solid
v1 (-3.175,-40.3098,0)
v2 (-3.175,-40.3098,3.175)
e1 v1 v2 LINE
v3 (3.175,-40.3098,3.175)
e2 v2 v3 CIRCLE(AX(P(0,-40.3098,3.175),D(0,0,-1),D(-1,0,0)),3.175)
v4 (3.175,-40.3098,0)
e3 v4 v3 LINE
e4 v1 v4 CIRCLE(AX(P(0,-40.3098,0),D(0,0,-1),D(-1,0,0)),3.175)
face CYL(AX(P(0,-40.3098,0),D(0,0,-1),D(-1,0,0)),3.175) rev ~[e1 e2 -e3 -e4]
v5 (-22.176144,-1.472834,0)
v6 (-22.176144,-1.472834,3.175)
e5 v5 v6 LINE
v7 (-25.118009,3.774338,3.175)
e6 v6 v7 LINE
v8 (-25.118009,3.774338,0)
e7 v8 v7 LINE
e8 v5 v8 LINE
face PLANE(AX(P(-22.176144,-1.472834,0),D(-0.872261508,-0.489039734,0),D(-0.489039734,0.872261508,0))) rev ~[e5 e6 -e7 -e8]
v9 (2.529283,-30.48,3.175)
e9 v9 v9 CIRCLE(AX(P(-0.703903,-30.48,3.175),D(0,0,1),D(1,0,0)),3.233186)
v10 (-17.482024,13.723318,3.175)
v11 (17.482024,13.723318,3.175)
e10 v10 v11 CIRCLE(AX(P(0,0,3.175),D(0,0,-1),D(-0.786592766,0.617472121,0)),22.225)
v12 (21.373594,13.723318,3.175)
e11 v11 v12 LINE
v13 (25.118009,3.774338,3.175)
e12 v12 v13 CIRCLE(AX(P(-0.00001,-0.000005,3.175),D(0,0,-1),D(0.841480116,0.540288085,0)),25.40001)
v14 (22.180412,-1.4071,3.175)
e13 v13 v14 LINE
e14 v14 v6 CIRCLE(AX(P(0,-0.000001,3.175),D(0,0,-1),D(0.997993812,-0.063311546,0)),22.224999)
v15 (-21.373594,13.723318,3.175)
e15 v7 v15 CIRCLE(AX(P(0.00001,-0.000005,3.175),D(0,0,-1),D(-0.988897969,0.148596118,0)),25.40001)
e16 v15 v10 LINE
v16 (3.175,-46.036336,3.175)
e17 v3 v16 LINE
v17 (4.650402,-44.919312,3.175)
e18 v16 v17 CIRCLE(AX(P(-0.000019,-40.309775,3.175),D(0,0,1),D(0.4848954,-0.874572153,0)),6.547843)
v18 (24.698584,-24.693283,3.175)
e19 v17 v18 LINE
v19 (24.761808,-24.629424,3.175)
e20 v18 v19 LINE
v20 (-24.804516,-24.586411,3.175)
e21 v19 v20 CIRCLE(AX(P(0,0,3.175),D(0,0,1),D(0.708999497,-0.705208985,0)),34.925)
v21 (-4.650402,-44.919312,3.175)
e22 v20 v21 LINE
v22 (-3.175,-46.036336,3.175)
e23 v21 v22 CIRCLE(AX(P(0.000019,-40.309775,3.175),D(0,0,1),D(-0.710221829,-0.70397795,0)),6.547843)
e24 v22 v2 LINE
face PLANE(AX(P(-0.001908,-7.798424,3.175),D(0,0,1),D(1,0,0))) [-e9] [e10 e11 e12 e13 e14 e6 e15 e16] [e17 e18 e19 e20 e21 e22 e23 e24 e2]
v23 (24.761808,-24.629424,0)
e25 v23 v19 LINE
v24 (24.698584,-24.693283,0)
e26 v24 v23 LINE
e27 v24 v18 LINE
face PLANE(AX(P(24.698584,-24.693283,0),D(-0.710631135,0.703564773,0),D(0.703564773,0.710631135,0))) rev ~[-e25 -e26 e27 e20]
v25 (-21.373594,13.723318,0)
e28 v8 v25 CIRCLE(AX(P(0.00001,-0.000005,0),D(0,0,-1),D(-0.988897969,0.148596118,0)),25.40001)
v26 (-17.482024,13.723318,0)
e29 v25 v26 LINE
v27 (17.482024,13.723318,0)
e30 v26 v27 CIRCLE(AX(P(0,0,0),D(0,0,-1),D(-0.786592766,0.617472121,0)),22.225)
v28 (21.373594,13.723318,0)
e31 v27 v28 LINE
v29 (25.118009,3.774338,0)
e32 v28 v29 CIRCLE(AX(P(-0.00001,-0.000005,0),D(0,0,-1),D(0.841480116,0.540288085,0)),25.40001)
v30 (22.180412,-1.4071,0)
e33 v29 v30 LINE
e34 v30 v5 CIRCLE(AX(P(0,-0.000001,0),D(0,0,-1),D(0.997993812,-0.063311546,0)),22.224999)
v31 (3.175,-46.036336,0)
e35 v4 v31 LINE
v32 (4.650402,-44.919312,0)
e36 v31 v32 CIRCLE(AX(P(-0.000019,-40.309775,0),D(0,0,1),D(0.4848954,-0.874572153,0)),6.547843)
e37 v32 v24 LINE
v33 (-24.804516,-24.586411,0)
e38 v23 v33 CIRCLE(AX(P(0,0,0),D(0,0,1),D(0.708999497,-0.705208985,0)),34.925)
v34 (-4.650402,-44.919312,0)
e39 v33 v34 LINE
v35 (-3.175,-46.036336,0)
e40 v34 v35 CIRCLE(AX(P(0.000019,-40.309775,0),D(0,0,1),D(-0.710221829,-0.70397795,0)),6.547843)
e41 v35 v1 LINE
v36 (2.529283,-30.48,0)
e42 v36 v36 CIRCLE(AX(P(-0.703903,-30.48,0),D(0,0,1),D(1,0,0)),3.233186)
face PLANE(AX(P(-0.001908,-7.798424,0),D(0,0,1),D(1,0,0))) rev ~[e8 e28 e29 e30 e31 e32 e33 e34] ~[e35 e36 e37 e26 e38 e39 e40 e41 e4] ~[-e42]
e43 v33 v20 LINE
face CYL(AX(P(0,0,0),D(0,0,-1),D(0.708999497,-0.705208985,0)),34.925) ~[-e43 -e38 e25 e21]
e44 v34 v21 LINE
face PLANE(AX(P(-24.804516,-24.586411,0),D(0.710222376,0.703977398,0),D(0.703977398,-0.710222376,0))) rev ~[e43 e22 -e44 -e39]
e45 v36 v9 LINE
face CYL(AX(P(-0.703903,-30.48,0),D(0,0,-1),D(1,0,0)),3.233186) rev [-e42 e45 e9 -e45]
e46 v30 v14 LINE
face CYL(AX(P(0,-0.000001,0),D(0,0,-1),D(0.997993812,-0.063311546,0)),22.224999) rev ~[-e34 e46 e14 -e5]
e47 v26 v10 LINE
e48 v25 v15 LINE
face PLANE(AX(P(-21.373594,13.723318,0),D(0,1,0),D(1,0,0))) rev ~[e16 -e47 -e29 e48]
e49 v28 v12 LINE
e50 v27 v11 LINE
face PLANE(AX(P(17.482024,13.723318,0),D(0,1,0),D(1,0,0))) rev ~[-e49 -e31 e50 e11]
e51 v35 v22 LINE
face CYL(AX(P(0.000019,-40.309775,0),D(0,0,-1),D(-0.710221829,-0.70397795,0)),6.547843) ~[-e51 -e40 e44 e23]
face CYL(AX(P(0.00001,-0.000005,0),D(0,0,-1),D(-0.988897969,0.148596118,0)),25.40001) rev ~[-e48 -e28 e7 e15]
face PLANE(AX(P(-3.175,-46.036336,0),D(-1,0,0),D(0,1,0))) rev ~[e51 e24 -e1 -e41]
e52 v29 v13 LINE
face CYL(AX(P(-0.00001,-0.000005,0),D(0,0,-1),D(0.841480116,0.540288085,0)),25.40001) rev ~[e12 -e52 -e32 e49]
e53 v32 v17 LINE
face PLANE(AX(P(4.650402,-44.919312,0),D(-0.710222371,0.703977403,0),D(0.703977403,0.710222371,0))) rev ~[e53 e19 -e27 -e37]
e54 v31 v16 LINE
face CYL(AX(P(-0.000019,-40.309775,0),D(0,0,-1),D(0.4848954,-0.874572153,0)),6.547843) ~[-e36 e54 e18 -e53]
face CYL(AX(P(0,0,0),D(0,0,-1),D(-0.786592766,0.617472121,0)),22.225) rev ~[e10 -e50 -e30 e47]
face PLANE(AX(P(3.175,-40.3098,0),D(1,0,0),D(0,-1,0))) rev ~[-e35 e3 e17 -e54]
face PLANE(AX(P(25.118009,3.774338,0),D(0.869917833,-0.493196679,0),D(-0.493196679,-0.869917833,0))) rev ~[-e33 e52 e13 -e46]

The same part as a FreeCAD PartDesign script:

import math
import FreeCAD as App
import Part
import Sketcher
Q = App.Units.Quantity

doc = App.newDocument("Part")
params = doc.addObject("Spreadsheet::Sheet", "Params")
for row, (alias, value) in enumerate([
    ("sketch1_radius", "1.375 in"),
    ("sketch1_radius2", "0.125 in"),
    ("sketch1_radius3", "0.875 in"),
    ("pad1_length", "0.125 in"),
], start=1):
    params.set(f"A{row}", alias)
    params.set(f"B{row}", "=" + value)
    params.setAlias(f"B{row}", alias)

body = doc.addObject("PartDesign::Body", "Body")

sketch1 = body.newObject("Sketcher::SketchObject", "Sketch")
sketch1.AttachmentSupport = (doc.getObject("XY_Plane"), [""])
sketch1.MapMode = "FlatFace"
sketch1.addGeometry(Part.LineSegment(App.Vector(24.698584, -24.693283, 0), App.Vector(24.761808, -24.629424, 0)), False)
sketch1.addGeometry(Part.ArcOfCircle(Part.Circle(App.Vector(0, 0, 0), App.Vector(0, 0, 1), 34.925), math.radians(-44.84643), math.radians(224.746989)), False)
sketch1.addGeometry(Part.LineSegment(App.Vector(-24.804516, -24.586411, 0), App.Vector(-4.650402, -44.919312, 0)), False)
sketch1.addGeometry(Part.ArcOfCircle(Part.Circle(App.Vector(0.000019, -40.309775, 0), App.Vector(0, 0, 1), 6.547843), math.radians(-135.252967), math.radians(-119.00562)), False)
sketch1.addGeometry(Part.LineSegment(App.Vector(-3.175, -46.036336, 0), App.Vector(-3.175, -40.3098, 0)), False)
sketch1.addGeometry(Part.ArcOfCircle(Part.Circle(App.Vector(0, -40.3098, 0), App.Vector(0, 0, 1), 3.175), math.radians(0), math.radians(180)), False)
sketch1.addGeometry(Part.LineSegment(App.Vector(3.175, -40.3098, 0), App.Vector(3.175, -46.036336, 0)), False)
sketch1.addGeometry(Part.ArcOfCircle(Part.Circle(App.Vector(-0.000019, -40.309775, 0), App.Vector(0, 0, 1), 6.547843), math.radians(-60.99438), math.radians(-44.747033)), False)
sketch1.addGeometry(Part.LineSegment(App.Vector(4.650402, -44.919312, 0), App.Vector(24.698584, -24.693283, 0)), False)
sketch1.addGeometry(Part.Circle(App.Vector(-0.703903, -30.48, 0), App.Vector(0, 0, 1), 3.233186), False)
sketch1.addGeometry(Part.LineSegment(App.Vector(25.118009, 3.774338, 0), App.Vector(22.180412, -1.4071, 0)), False)
sketch1.addGeometry(Part.ArcOfCircle(Part.Circle(App.Vector(0, -0.000001, 0), App.Vector(0, 0, 1), 22.224999), math.radians(-176.20027), math.radians(-3.629912)), False)
sketch1.addGeometry(Part.LineSegment(App.Vector(-22.176144, -1.472834, 0), App.Vector(-25.118009, 3.774338, 0)), False)
sketch1.addGeometry(Part.ArcOfCircle(Part.Circle(App.Vector(0.00001, -0.000005, 0), App.Vector(0, 0, 1), 25.40001), math.radians(147.296748), math.radians(171.454422)), False)
sketch1.addGeometry(Part.LineSegment(App.Vector(-21.373594, 13.723318, 0), App.Vector(-17.482024, 13.723318, 0)), False)
sketch1.addGeometry(Part.ArcOfCircle(Part.Circle(App.Vector(0, 0, 0), App.Vector(0, 0, 1), 22.225), math.radians(38.131769), math.radians(141.868231)), False)
sketch1.addGeometry(Part.LineSegment(App.Vector(17.482024, 13.723318, 0), App.Vector(21.373594, 13.723318, 0)), False)
sketch1.addGeometry(Part.ArcOfCircle(Part.Circle(App.Vector(-0.00001, -0.000005, 0), App.Vector(0, 0, 1), 25.40001), math.radians(8.545578), math.radians(32.703252)), False)
sketch1.addConstraint(Sketcher.Constraint("Coincident", 0, 2, 1, 1))
sketch1.addConstraint(Sketcher.Constraint("Tangent", 1, 2, 2, 1))
sketch1.addConstraint(Sketcher.Constraint("Tangent", 2, 2, 3, 1))
sketch1.addConstraint(Sketcher.Constraint("Coincident", 3, 2, 4, 1))
sketch1.addConstraint(Sketcher.Constraint("Tangent", 4, 2, 5, 2))
sketch1.addConstraint(Sketcher.Constraint("Tangent", 5, 1, 6, 1))
sketch1.addConstraint(Sketcher.Constraint("Coincident", 6, 2, 7, 1))
sketch1.addConstraint(Sketcher.Constraint("Tangent", 7, 2, 8, 1))
sketch1.addConstraint(Sketcher.Constraint("Coincident", 8, 2, 0, 1))
sketch1.addConstraint(Sketcher.Constraint("Coincident", 10, 2, 11, 2))
sketch1.addConstraint(Sketcher.Constraint("Coincident", 11, 1, 12, 1))
sketch1.addConstraint(Sketcher.Constraint("Coincident", 12, 2, 13, 2))
sketch1.addConstraint(Sketcher.Constraint("Coincident", 13, 1, 14, 1))
sketch1.addConstraint(Sketcher.Constraint("Coincident", 14, 2, 15, 2))
sketch1.addConstraint(Sketcher.Constraint("Coincident", 15, 1, 16, 1))
sketch1.addConstraint(Sketcher.Constraint("Coincident", 16, 2, 17, 2))
sketch1.addConstraint(Sketcher.Constraint("Coincident", 17, 1, 10, 1))
sketch1.addConstraint(Sketcher.Constraint("Vertical", 4))
sketch1.addConstraint(Sketcher.Constraint("Vertical", 6))
sketch1.addConstraint(Sketcher.Constraint("Horizontal", 14))
sketch1.addConstraint(Sketcher.Constraint("Horizontal", 16))
sketch1.addConstraint(Sketcher.Constraint("Coincident", 1, 3, -1, 1))
sketch1.addConstraint(Sketcher.Constraint("Coincident", 11, 3, -1, 1))
sketch1.addConstraint(Sketcher.Constraint("Coincident", 15, 3, -1, 1))
sketch1.addConstraint(Sketcher.Constraint("Equal", 3, 7))
sketch1.addConstraint(Sketcher.Constraint("Equal", 11, 15))
sketch1.addConstraint(Sketcher.Constraint("Equal", 13, 17))
sketch1.addConstraint(Sketcher.Constraint("Symmetric", 13, 3, 17, 3, -1, 1))
sketch1.addConstraint(Sketcher.Constraint("Symmetric", 3, 3, 7, 3, -2))
sketch1.addConstraint(Sketcher.Constraint("Symmetric", 13, 1, 16, 2, -2))
sketch1.addConstraint(Sketcher.Constraint("PointOnObject", 5, 3, -2))
sketch1.addConstraint(Sketcher.Constraint("Horizontal", 2, 2, 7, 2))
sketch1.addConstraint(Sketcher.Constraint("Horizontal", 12, 2, 17, 1))
sketch1.addConstraint(Sketcher.Constraint("Radius", 1, Q("1.375 in")))
sketch1.addConstraint(Sketcher.Constraint("Radius", 5, Q("0.125 in")))
sketch1.addConstraint(Sketcher.Constraint("Radius", 11, Q("0.875 in")))
sketch1.addConstraint(Sketcher.Constraint("DistanceY", 9, 3, -1, 1, Q("1.2 in")))
sketch1.addConstraint(Sketcher.Constraint("Diameter", 9, Q("6.466372 mm")))
sketch1.addConstraint(Sketcher.Constraint("DistanceY", 5, 3, -1, 1, Q("1.587 in")))
sketch1.addConstraint(Sketcher.Constraint("Radius", 13, Q("25.40001 mm")))
sketch1.addConstraint(Sketcher.Constraint("Radius", 3, Q("6.547843 mm")))
sketch1.addConstraint(Sketcher.Constraint("DistanceX", 14, 1, 14, 2, Q("3.89157 mm")))
sketch1.addConstraint(Sketcher.Constraint("DistanceX", 2, 2, -1, 1, Q("4.650402 mm")))
sketch1.addConstraint(Sketcher.Constraint("DistanceY", 10, 2, -1, 1, Q("1.4071 mm")))
sketch1.addConstraint(Sketcher.Constraint("DistanceX", 13, 3, 0, 2, Q("24.761798 mm")))
sketch1.addConstraint(Sketcher.Constraint("DistanceX", 2, 2, 9, 3, Q("3.946499 mm")))
sketch1.addConstraint(Sketcher.Constraint("DistanceY", 2, 2, 1, 2, Q("20.332901 mm")))
sketch1.addConstraint(Sketcher.Constraint("DistanceX", 12, 2, 17, 3, Q("25.117999 mm")))
sketch1.addConstraint(Sketcher.Constraint("Distance", 10, Q("5.956238 mm")))
sketch1.addConstraint(Sketcher.Constraint("DistanceY", 8, 2, 0, 2, Q("0.063859 mm")))
sketch1.addConstraint(Sketcher.Constraint("DistanceY", 11, 1, 17, 3, Q("1.472829 mm")))
sketch1.setExpression("Constraints[33]", "Params.sketch1_radius")
sketch1.setExpression("Constraints[34]", "Params.sketch1_radius2")
sketch1.setExpression("Constraints[35]", "Params.sketch1_radius3")
pad1 = body.newObject("PartDesign::Pad", "Pad")
pad1.Profile = sketch1
pad1.setExpression("Length", "Params.pad1_length")

doc.recompute()
